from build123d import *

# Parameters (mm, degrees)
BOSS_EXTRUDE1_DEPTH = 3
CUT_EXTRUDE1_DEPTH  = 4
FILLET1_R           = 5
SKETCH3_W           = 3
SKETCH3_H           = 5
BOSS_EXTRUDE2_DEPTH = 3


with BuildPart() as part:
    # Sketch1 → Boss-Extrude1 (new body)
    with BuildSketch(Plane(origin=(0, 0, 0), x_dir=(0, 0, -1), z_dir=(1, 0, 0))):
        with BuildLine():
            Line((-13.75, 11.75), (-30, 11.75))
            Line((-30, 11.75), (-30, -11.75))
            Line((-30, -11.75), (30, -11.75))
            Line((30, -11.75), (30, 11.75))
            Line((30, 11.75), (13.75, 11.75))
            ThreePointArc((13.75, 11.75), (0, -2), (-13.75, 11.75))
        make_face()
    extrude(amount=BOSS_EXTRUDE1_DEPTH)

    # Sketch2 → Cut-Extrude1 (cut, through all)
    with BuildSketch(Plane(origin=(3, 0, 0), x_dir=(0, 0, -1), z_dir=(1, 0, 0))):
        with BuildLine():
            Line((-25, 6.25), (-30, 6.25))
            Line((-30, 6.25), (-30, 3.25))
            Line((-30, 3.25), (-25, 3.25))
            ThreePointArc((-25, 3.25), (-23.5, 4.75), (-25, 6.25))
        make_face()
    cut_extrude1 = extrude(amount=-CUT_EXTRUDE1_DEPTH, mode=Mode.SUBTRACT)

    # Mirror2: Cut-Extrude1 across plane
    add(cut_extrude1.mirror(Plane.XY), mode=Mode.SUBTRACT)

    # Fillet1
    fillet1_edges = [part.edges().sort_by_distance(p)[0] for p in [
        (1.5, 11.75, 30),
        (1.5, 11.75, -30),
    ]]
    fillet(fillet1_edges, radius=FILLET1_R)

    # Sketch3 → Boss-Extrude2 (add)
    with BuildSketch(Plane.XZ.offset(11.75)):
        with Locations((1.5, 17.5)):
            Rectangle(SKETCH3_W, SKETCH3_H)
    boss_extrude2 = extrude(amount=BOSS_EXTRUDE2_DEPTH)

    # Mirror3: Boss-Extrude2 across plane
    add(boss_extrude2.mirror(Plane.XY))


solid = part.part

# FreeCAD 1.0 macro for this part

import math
import FreeCAD as App
import Part
import Sketcher


def edges_at(feature, points):
    """Names of the edges that pass closest to the given points."""
    edges = feature.Shape.Edges
    near = lambda p: min(range(len(edges)), key=lambda i: edges[i].distToShape(Part.Vertex(*p))[0])
    return sorted({f"Edge{near(p) + 1}" for p in points})


def add_polygon(sketch, points):
    """Adds a closed chain of lines whose ends are joined by coincident constraints."""
    first, n = sketch.GeometryCount, len(points)
    for a, b in zip(points, points[1:] + points[:1]):
        sketch.addGeometry(Part.LineSegment(App.Vector(*a, 0), App.Vector(*b, 0)), False)
    for i in range(n):
        sketch.addConstraint(Sketcher.Constraint("Coincident", first + i, 2, first + (i + 1) % n, 1))

doc = App.newDocument("Part")
params = doc.addObject("Spreadsheet::Sheet", "Params")
for row, (alias, value) in enumerate([
    ("sketch1_height", "60 mm"),
    ("sketch1_radius", "13.75 mm"),
    ("sketch1_width", "23.5 mm"),
    ("pad1_length", "3 mm"),
    ("sketch2_radius", "1.5 mm"),
    ("sketch2_height", "5 mm"),
    ("fillet_radius", "5 mm"),
    ("sketch3_width", "3 mm"),
    ("sketch3_height", "5 mm"),
    ("pad2_length", "3 mm"),
], start=1):
    params.set(f"A{row}", alias)
    params.set(f"B{row}", "=" + value)
    params.setAlias(f"B{row}", alias)

body = doc.addObject("PartDesign::Body", "Body")

sketch1 = doc.addObject("Sketcher::SketchObject", "Sketch")
body.addObject(sketch1)
sketch1.AttachmentSupport = (doc.YZ_Plane, [""])
sketch1.MapMode = "FlatFace"
sketch1.addGeometry(Part.LineSegment(App.Vector(11.75, 13.75, 0), App.Vector(11.75, 30, 0)), False)
sketch1.addGeometry(Part.LineSegment(App.Vector(11.75, 30, 0), App.Vector(-11.75, 30, 0)), False)
sketch1.addGeometry(Part.LineSegment(App.Vector(-11.75, 30, 0), App.Vector(-11.75, -30, 0)), False)
sketch1.addGeometry(Part.LineSegment(App.Vector(-11.75, -30, 0), App.Vector(11.75, -30, 0)), False)
sketch1.addGeometry(Part.LineSegment(App.Vector(11.75, -30, 0), App.Vector(11.75, -13.75, 0)), False)
sketch1.addGeometry(Part.ArcOfCircle(Part.Circle(App.Vector(11.75, 0, 0), App.Vector(0, 0, 1), 13.75), math.radians(90), math.radians(270)), False)
sketch1.addConstraint(Sketcher.Constraint("Coincident", 0, 2, 1, 1))
sketch1.addConstraint(Sketcher.Constraint("Coincident", 1, 2, 2, 1))
sketch1.addConstraint(Sketcher.Constraint("Coincident", 2, 2, 3, 1))
sketch1.addConstraint(Sketcher.Constraint("Coincident", 3, 2, 4, 1))
sketch1.addConstraint(Sketcher.Constraint("Coincident", 4, 2, 5, 2))
sketch1.addConstraint(Sketcher.Constraint("Coincident", 5, 1, 0, 1))
sketch1.addConstraint(Sketcher.Constraint("Vertical", 0))
sketch1.addConstraint(Sketcher.Constraint("Horizontal", 1))
sketch1.addConstraint(Sketcher.Constraint("Vertical", 2))
sketch1.addConstraint(Sketcher.Constraint("Horizontal", 3))
sketch1.addConstraint(Sketcher.Constraint("Vertical", 4))
sketch1.addConstraint(Sketcher.Constraint("Symmetric", 0, 2, 2, 2, -1, 1))
sketch1.addConstraint(Sketcher.Constraint("Symmetric", 4, 2, 5, 1, -1))
sketch1.addConstraint(Sketcher.Constraint("Vertical", 5, 3, 0, 2))
sketch1.addConstraint(Sketcher.Constraint("DistanceY", 2, 2, 2, 1, 60.0))
sketch1.addConstraint(Sketcher.Constraint("Radius", 5, 13.75))
sketch1.addConstraint(Sketcher.Constraint("DistanceX", 1, 2, 1, 1, 23.5))
sketch1.setExpression("Constraints[14]", "Params.sketch1_height")
sketch1.setExpression("Constraints[15]", "Params.sketch1_radius")
sketch1.setExpression("Constraints[16]", "Params.sketch1_width")
pad1 = doc.addObject("PartDesign::Pad", "Pad")
body.addObject(pad1)
pad1.Profile = sketch1
pad1.setExpression("Length", "Params.pad1_length")

sketch2 = doc.addObject("Sketcher::SketchObject", "Sketch001")
body.addObject(sketch2)
sketch2.AttachmentSupport = (doc.YZ_Plane, [""])
sketch2.MapMode = "FlatFace"
sketch2.AttachmentOffset = App.Placement(App.Vector(0, 0, 3), App.Rotation())
sketch2.addGeometry(Part.LineSegment(App.Vector(6.25, 25, 0), App.Vector(6.25, 30, 0)), False)
sketch2.addGeometry(Part.LineSegment(App.Vector(6.25, 30, 0), App.Vector(3.25, 30, 0)), False)
sketch2.addGeometry(Part.LineSegment(App.Vector(3.25, 30, 0), App.Vector(3.25, 25, 0)), False)
sketch2.addGeometry(Part.ArcOfCircle(Part.Circle(App.Vector(4.75, 25, 0), App.Vector(0, 0, 1), 1.5), math.radians(180), math.radians(360)), False)
sketch2.addConstraint(Sketcher.Constraint("Coincident", 0, 2, 1, 1))
sketch2.addConstraint(Sketcher.Constraint("Coincident", 1, 2, 2, 1))
sketch2.addConstraint(Sketcher.Constraint("Tangent", 2, 2, 3, 1))
sketch2.addConstraint(Sketcher.Constraint("Tangent", 3, 2, 0, 1))
sketch2.addConstraint(Sketcher.Constraint("Vertical", 0))
sketch2.addConstraint(Sketcher.Constraint("Horizontal", 1))
sketch2.addConstraint(Sketcher.Constraint("Vertical", 2))
sketch2.addConstraint(Sketcher.Constraint("Radius", 3, 1.5))
sketch2.addConstraint(Sketcher.Constraint("DistanceY", 0, 1, 0, 2, 5.0))
sketch2.addConstraint(Sketcher.Constraint("DistanceY", -1, 1, 3, 3, 25.0))
sketch2.addConstraint(Sketcher.Constraint("DistanceX", -1, 1, 3, 3, 4.75))
sketch2.setExpression("Constraints[7]", "Params.sketch2_radius")
sketch2.setExpression("Constraints[8]", "Params.sketch2_height")
pocket1 = doc.addObject("PartDesign::Pocket", "Pocket")
body.addObject(pocket1)
pocket1.Profile = sketch2
pocket1.Type = "ThroughAll"
doc.recompute()

mirrored = doc.addObject("PartDesign::Mirrored", "Mirrored")
body.addObject(mirrored)
mirrored.Originals = [pocket1]
mirrored.MirrorPlane = (doc.XY_Plane, [""])
body.Tip = mirrored
doc.recompute()

fillet = doc.addObject("PartDesign::Fillet", "Fillet")
body.addObject(fillet)
fillet.Base = (mirrored, edges_at(mirrored, [(1.5, 11.75, 30), (1.5, 11.75, -30)]))
fillet.setExpression("Radius", "Params.fillet_radius")

sketch3 = doc.addObject("Sketcher::SketchObject", "Sketch002")
body.addObject(sketch3)
sketch3.AttachmentSupport = (doc.XZ_Plane, [""])
sketch3.MapMode = "FlatFace"
sketch3.AttachmentOffset = App.Placement(App.Vector(0, 0, 11.75), App.Rotation())
add_polygon(sketch3, [(0, 20), (0, 15), (3, 15), (3, 20)])
sketch3.addConstraint(Sketcher.Constraint("Vertical", 0))
sketch3.addConstraint(Sketcher.Constraint("Horizontal", 1))
sketch3.addConstraint(Sketcher.Constraint("Vertical", 2))
sketch3.addConstraint(Sketcher.Constraint("Horizontal", 3))
sketch3.addConstraint(Sketcher.Constraint("PointOnObject", 0, 2, -2))
sketch3.addConstraint(Sketcher.Constraint("DistanceX", 1, 1, 1, 2, 3.0))
sketch3.addConstraint(Sketcher.Constraint("DistanceY", 0, 2, 0, 1, 5.0))
sketch3.addConstraint(Sketcher.Constraint("DistanceY", -1, 1, 0, 2, 15.0))
sketch3.setExpression("Constraints[9]", "Params.sketch3_width")
sketch3.setExpression("Constraints[10]", "Params.sketch3_height")
pad2 = doc.addObject("PartDesign::Pad", "Pad001")
body.addObject(pad2)
pad2.Profile = sketch3
pad2.setExpression("Length", "Params.pad2_length")
doc.recompute()

mirrored2 = doc.addObject("PartDesign::Mirrored", "Mirrored001")
body.addObject(mirrored2)
mirrored2.Originals = [pad2]
mirrored2.MirrorPlane = (doc.XY_Plane, [""])
body.Tip = mirrored2

doc.recompute()
